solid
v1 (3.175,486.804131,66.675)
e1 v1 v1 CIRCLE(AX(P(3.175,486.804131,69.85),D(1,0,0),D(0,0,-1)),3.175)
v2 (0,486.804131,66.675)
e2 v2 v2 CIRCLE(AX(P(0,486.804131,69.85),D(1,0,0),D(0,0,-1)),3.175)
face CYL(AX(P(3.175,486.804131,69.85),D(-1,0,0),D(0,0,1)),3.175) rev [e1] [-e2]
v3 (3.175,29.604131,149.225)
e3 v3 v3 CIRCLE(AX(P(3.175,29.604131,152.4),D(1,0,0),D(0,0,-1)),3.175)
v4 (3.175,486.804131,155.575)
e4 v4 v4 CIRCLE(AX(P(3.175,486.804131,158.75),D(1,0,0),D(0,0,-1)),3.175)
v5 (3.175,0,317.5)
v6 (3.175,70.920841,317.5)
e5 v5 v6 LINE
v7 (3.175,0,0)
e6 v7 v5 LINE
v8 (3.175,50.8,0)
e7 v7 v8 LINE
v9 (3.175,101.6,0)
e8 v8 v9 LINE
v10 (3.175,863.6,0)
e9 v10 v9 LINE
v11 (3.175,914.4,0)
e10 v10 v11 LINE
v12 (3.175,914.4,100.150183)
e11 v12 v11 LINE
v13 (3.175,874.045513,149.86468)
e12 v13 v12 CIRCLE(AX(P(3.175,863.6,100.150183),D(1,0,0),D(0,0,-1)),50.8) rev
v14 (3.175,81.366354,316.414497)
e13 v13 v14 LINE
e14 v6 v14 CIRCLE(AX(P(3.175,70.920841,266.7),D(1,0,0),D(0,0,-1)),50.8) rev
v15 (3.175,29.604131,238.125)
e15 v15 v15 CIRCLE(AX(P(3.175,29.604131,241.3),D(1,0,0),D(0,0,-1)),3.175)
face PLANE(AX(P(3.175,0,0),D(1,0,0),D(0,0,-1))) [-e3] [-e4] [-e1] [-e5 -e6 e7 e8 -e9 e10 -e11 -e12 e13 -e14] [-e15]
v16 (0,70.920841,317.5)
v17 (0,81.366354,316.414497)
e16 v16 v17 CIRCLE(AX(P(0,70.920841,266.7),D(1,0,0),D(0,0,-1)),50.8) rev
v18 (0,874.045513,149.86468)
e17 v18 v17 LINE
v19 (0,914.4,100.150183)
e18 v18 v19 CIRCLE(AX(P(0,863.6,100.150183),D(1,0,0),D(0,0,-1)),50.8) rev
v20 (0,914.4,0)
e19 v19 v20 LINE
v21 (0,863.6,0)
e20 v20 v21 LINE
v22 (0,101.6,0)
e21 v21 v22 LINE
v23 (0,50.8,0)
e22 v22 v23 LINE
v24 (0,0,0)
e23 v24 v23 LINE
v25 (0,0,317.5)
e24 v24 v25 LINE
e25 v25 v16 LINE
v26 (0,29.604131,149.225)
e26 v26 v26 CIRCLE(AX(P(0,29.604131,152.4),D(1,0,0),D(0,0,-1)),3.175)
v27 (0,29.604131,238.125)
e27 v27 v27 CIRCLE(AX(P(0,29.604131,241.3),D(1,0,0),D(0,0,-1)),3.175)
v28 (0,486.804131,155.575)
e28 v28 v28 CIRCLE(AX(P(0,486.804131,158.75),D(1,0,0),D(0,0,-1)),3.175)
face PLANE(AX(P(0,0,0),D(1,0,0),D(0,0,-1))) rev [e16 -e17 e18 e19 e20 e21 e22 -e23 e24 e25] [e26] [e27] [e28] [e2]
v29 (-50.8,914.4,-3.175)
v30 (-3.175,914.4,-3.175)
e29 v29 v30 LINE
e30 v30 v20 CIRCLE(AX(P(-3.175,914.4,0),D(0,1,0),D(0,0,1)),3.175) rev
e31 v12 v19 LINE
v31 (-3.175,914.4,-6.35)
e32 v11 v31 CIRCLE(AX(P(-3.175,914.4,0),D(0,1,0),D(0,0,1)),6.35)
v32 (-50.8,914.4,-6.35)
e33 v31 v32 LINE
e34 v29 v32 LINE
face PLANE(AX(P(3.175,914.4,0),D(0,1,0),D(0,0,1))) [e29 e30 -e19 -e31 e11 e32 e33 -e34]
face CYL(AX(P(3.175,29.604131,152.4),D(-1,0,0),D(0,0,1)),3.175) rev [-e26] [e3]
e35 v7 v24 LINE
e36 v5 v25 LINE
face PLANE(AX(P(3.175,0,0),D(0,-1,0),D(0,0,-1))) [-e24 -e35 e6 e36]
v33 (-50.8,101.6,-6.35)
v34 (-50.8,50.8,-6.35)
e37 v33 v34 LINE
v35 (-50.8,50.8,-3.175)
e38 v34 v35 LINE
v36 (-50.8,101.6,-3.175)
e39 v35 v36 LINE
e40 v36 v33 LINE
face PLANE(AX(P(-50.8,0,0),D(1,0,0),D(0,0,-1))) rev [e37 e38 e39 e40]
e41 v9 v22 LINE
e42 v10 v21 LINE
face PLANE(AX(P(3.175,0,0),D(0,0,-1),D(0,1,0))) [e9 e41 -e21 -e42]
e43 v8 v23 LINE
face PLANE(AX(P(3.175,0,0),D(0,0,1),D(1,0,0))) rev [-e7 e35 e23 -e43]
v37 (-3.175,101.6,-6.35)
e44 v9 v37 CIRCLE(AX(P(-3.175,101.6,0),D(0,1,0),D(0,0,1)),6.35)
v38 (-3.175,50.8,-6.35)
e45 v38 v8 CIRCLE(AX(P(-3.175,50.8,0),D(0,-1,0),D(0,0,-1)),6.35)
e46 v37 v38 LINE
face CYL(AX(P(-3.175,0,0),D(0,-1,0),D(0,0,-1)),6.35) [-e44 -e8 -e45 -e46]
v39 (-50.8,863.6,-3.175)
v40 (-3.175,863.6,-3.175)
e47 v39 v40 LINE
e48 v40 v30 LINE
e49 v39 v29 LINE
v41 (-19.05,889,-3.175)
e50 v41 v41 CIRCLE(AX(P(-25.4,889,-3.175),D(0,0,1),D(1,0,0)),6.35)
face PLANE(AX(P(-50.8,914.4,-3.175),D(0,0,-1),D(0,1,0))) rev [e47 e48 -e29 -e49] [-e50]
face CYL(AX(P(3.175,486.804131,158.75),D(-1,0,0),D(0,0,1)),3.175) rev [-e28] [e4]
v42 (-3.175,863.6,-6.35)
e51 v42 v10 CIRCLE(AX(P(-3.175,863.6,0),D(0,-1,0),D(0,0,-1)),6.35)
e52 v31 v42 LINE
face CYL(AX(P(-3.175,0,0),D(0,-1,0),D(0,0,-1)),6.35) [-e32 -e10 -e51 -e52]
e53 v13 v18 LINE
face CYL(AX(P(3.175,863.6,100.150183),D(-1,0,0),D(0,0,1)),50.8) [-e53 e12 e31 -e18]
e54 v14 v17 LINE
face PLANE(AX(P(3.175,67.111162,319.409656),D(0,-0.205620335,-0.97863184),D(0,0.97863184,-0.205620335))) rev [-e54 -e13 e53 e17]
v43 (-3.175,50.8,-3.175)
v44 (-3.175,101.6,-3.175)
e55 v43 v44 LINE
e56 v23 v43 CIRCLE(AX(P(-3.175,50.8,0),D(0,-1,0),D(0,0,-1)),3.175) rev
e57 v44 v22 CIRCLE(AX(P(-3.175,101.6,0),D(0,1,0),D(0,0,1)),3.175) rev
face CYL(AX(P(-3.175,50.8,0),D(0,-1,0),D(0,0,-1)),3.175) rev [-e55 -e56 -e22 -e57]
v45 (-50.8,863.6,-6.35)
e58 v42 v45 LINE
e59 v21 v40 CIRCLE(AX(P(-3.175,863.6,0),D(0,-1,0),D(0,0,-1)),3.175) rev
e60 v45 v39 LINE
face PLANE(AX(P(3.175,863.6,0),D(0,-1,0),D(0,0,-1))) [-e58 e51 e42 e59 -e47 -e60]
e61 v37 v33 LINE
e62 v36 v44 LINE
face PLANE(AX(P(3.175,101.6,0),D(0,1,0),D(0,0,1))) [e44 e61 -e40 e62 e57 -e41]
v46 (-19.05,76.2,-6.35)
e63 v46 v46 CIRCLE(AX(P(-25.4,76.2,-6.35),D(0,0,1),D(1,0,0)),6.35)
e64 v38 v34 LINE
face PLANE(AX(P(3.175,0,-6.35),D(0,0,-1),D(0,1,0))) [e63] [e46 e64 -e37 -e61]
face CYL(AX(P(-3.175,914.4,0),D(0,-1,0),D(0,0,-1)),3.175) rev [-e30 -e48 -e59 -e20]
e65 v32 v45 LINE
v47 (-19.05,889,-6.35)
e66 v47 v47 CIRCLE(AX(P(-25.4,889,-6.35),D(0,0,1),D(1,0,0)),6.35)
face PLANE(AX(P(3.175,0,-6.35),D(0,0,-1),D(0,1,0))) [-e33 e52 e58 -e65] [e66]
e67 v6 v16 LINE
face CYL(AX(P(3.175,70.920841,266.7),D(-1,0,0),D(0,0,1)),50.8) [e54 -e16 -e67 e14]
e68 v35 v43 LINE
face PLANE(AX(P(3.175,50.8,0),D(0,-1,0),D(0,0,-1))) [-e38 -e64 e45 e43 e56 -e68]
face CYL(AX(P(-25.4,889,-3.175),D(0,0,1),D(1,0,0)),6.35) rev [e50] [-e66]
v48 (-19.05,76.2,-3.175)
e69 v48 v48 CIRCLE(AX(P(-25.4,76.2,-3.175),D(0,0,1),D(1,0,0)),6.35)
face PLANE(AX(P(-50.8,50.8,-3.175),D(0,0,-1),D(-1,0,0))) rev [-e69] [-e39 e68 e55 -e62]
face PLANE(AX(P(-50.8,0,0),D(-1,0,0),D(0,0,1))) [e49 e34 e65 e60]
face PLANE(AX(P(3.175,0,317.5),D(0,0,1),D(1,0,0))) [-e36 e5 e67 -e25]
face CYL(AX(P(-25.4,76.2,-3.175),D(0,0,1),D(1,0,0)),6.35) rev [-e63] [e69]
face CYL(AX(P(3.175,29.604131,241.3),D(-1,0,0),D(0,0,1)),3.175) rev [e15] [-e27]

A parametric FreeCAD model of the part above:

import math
import FreeCAD as App
import Part
import Sketcher
from FreeCAD import Vector
Q = App.Units.Quantity


def edges_at(feature, points):
    """Names of the edges that pass closest to the given points."""
    edges = feature.Shape.Edges
    near = lambda p: min(range(len(edges)), key=lambda i: edges[i].distToShape(Part.Vertex(*p))[0])
    return sorted({f"Edge{near(p) + 1}" for p in points})


def add_polygon(sketch, points):
    """Adds a closed chain of lines whose ends are joined by coincident constraints."""
    first, n = sketch.GeometryCount, len(points)
    for a, b in zip(points, points[1:] + points[:1]):
        sketch.addGeometry(Part.LineSegment(App.Vector(*a, 0), App.Vector(*b, 0)), False)
    for i in range(n):
        sketch.addConstraint(Sketcher.Constraint("Coincident", first + i, 2, first + (i + 1) % n, 1))

doc = App.newDocument("Part")
params = doc.addObject("Spreadsheet::Sheet", "Params")
for row, (alias, value) in enumerate([
    ("sketch1_radius", "2 in"),
    ("sketch1_diameter", "0.25 in"),
    ("sketch1_width", "30 in"),
    ("sketch1_height", "12.5 in"),
    ("sketch1_height2", "0.25 in"),
    ("pad1_length", "0.125 in"),
    ("sketch2_width", "2 in"),
    ("sketch2_height", "0.125 in"),
    ("pad2_length", "2 in"),
    ("fillet_radius", "0.25 in"),
    ("sketch3_diameter", "0.5 in"),
    ("hole_diameter", "0.5 in"),
    ("fillet2_radius", "0.125 in"),
], start=1):
    params.set(f"A{row}", alias)
    params.set(f"B{row}", "=" + value)
    params.setAlias(f"B{row}", alias)

body = doc.addObject("PartDesign::Body", "Body")

# Sketch on YZ plane
sketch1 = doc.addObject("Sketcher::SketchObject", "Sketch")
body.addObject(sketch1)
sketch1.AttachmentSupport = (doc.YZ_Plane, [""])
sketch1.MapMode = "FlatFace"
sketch1.addGeometry([
    Part.LineSegment(Vector(0, 317.5, 0), Vector(0, 0, 0)),  # 0
    Part.LineSegment(Vector(0, 0, 0), Vector(50.8, 0, 0)),  # 1
    Part.LineSegment(Vector(50.8, 0, 0), Vector(50.8, -6.3, 0)),  # 2
    Part.LineSegment(Vector(50.8, -6.3, 0), Vector(101.6, -6.3, 0)),  # 3
    Part.LineSegment(Vector(101.6, -6.3, 0), Vector(101.6, 0, 0)),  # 4
    Part.LineSegment(Vector(101.6, 0, 0), Vector(863.6, 0, 0)),  # 5
    Part.LineSegment(Vector(863.6, 0, 0), Vector(863.6, -6.3, 0)),  # 6
    Part.LineSegment(Vector(863.6, -6.3, 0), Vector(914.4, -6.3, 0)),  # 7
    Part.LineSegment(Vector(914.4, -6.3, 0), Vector(914.4, 100.2, 0)),  # 8
    Part.ArcOfCircle(Part.Circle(Vector(863.6, 100.2, 0), Vector(0, 0, 1), 50.8), math.radians(0), math.radians(78)),  # 9
    Part.LineSegment(Vector(874, 149.9, 0), Vector(81.4, 316.4, 0)),  # 10
    Part.ArcOfCircle(Part.Circle(Vector(70.9, 266.7, 0), Vector(0, 0, 1), 50.8), math.radians(78.13), math.radians(90)),  # 11
    Part.LineSegment(Vector(70.9, 317.5, 0), Vector(0, 317.5, 0)),  # 12
    Part.Circle(Vector(29.6, 152.4, 0), Vector(0, 0, 1), 3.2),  # 13
    Part.Circle(Vector(29.6, 241.3, 0), Vector(0, 0, 1), 3.2),  # 14
    Part.Circle(Vector(486.8, 69.8, 0), Vector(0, 0, 1), 3.2),  # 15
    Part.Circle(Vector(486.8, 158.8, 0), Vector(0, 0, 1), 3.2),  # 16
], False)
sketch1.addConstraint([
    Sketcher.Constraint("Coincident", 0, 2, 1, 1),
    Sketcher.Constraint("Coincident", 1, 2, 2, 1),
    Sketcher.Constraint("Coincident", 2, 2, 3, 1),
    Sketcher.Constraint("Coincident", 3, 2, 4, 1),
    Sketcher.Constraint("Coincident", 4, 2, 5, 1),
    Sketcher.Constraint("Coincident", 5, 2, 6, 1),
    Sketcher.Constraint("Coincident", 6, 2, 7, 1),
    Sketcher.Constraint("Coincident", 7, 2, 8, 1),
    Sketcher.Constraint("Tangent", 8, 2, 9, 1),
    Sketcher.Constraint("Tangent", 9, 2, 10, 1),
    Sketcher.Constraint("Tangent", 10, 2, 11, 1),
    Sketcher.Constraint("Tangent", 11, 2, 12, 1),
    Sketcher.Constraint("Coincident", 12, 2, 0, 1),
    Sketcher.Constraint("Vertical", 0),
    Sketcher.Constraint("Horizontal", 1),
    Sketcher.Constraint("Vertical", 2),
    Sketcher.Constraint("Horizontal", 3),
    Sketcher.Constraint("Vertical", 4),
    Sketcher.Constraint("Horizontal", 5),
    Sketcher.Constraint("Vertical", 6),
    Sketcher.Constraint("Horizontal", 7),
    Sketcher.Constraint("Vertical", 8),
    Sketcher.Constraint("Horizontal", 12),
    Sketcher.Constraint("Coincident", 0, 2, -1, 1),
    Sketcher.Constraint("Equal", 9, 11),
    Sketcher.Constraint("Equal", 13, 14),
    Sketcher.Constraint("Equal", 14, 15),
    Sketcher.Constraint("Equal", 15, 16),
    Sketcher.Constraint("PointOnObject", 4, 2, -1),
    Sketcher.Constraint("Horizontal", 3, 2, 6, 2),
    Sketcher.Constraint("Vertical", 13, 3, 14, 3),
    Sketcher.Constraint("Vertical", 15, 3, 16, 3),
    Sketcher.Constraint("Vertical", 9, 3, 5, 2),
    Sketcher.Constraint("Equal", 1, 3),
    Sketcher.Constraint("Equal", 3, 7),
    Sketcher.Constraint("Radius", 9, Q("2 in")),
    Sketcher.Constraint("Diameter", 13, Q("0.25 in")),
    Sketcher.Constraint("DistanceX", 5, 1, 5, 2, Q("30 in")),
    Sketcher.Constraint("DistanceY", 0, 2, 0, 1, Q("12.5 in")),
    Sketcher.Constraint("DistanceY", -1, 1, 13, 3, Q("6 in")),
    Sketcher.Constraint("DistanceY", 14, 3, 11, 3, Q("1 in")),
    Sketcher.Constraint("DistanceX", 13, 3, 15, 3, Q("18 in")),
    Sketcher.Constraint("DistanceY", 6, 2, 15, 3, Q("3 in")),
    Sketcher.Constraint("DistanceY", 2, 2, 2, 1, Q("0.25 in")),
    Sketcher.Constraint("DistanceY", 15, 3, 16, 3, Q("3.5 in")),
    Sketcher.Constraint("DistanceX", 12, 2, 12, 1, Q("70.920841 mm")),
    Sketcher.Constraint("DistanceY", 8, 1, 8, 2, Q("106.500183 mm")),
    Sketcher.Constraint("DistanceX", -1, 1, 13, 3, Q("29.604131 mm")),
])
sketch1.setExpression("Constraints[35]", "Params.sketch1_radius")
sketch1.setExpression("Constraints[36]", "Params.sketch1_diameter")
sketch1.setExpression("Constraints[37]", "Params.sketch1_width")
sketch1.setExpression("Constraints[38]", "Params.sketch1_height")
sketch1.setExpression("Constraints[43]", "Params.sketch1_height2")
pad1 = doc.addObject("PartDesign::Pad", "Pad")
body.addObject(pad1)
pad1.Profile = sketch1
pad1.setExpression("Length", "Params.pad1_length")

# Sketch on YZ plane
sketch2 = doc.addObject("Sketcher::SketchObject", "Sketch001")
body.addObject(sketch2)
sketch2.AttachmentSupport = (doc.YZ_Plane, [""])
sketch2.MapMode = "FlatFace"
add_polygon(sketch2, [(914.4, -6.3), (863.6, -6.3), (863.6, -3.2), (914.4, -3.2)])  # lines 0-3
add_polygon(sketch2, [(101.6, -6.3), (50.8, -6.3), (50.8, -3.2), (101.6, -3.2)])  # lines 4-7
sketch2.addConstraint([
    Sketcher.Constraint("Horizontal", 0),
    Sketcher.Constraint("Vertical", 1),
    Sketcher.Constraint("Horizontal", 2),
    Sketcher.Constraint("Vertical", 3),
    Sketcher.Constraint("Horizontal", 4),
    Sketcher.Constraint("Vertical", 5),
    Sketcher.Constraint("Horizontal", 6),
    Sketcher.Constraint("Vertical", 7),
    Sketcher.Constraint("Horizontal", 3, 2, 4, 2),
    Sketcher.Constraint("Horizontal", 2, 2, 5, 2),
    Sketcher.Constraint("Equal", 2, 4),
    Sketcher.Constraint("DistanceX", 0, 2, 0, 1, Q("2 in")),
    Sketcher.Constraint("DistanceX", -1, 1, 0, 2, Q("34 in")),
    Sketcher.Constraint("DistanceX", -1, 1, 4, 2, Q("2 in")),
    Sketcher.Constraint("DistanceY", 1, 1, 1, 2, Q("0.125 in")),
    Sketcher.Constraint("DistanceY", 0, 2, -1, 1, Q("0.25 in")),
])
sketch2.setExpression("Constraints[19]", "Params.sketch2_width")
sketch2.setExpression("Constraints[22]", "Params.sketch2_height")
pad2 = doc.addObject("PartDesign::Pad", "Pad001")
body.addObject(pad2)
pad2.Profile = sketch2
pad2.setExpression("Length", "Params.pad2_length")
pad2.Reversed = True
doc.recompute()

fillet = doc.addObject("PartDesign::Fillet", "Fillet")
body.addObject(fillet)
fillet.Base = (pad2, edges_at(pad2, [(3.175, 76.2, -6.35), (3.175, 889, -6.35)]))
fillet.setExpression("Radius", "Params.fillet_radius")

# Sketch on XY plane
sketch3 = doc.addObject("Sketcher::SketchObject", "Sketch002")
body.addObject(sketch3)
sketch3.AttachmentSupport = (doc.XY_Plane, [""])
sketch3.MapMode = "FlatFace"
sketch3.AttachmentOffset = App.Placement(Vector(0, 0, -0.125 * 25.4), App.Rotation())
sketch3.addGeometry([
    Part.Circle(Vector(-25, 76, 0), Vector(0, 0, 1), 6),
    Part.Circle(Vector(-25, 889, 0), Vector(0, 0, 1), 6),
], False)
sketch3.addConstraint([
    Sketcher.Constraint("Equal", 0, 1),
    Sketcher.Constraint("Vertical", 0, 3, 1, 3),
    Sketcher.Constraint("Diameter", 0, Q("0.5 in")),
    Sketcher.Constraint("DistanceX", 0, 3, -1, 1, Q("1 in")),
    Sketcher.Constraint("DistanceY", -1, 1, 0, 3, Q("3 in")),
    Sketcher.Constraint("DistanceY", -1, 1, 1, 3, Q("35 in")),
])
sketch3.setExpression("Constraints[2]", "Params.sketch3_diameter")
doc.recompute()
hole = doc.addObject("PartDesign::Hole", "Hole")
body.addObject(hole)
hole.Profile = sketch3
hole.ThreadType = "None"
hole.setExpression("Diameter", "Params.hole_diameter")
hole.DepthType = "ThroughAll"
doc.recompute()

fillet2 = doc.addObject("PartDesign::Fillet", "Fillet001")
body.addObject(fillet2)
fillet2.Base = (hole, edges_at(hole, [(0, 889, -3.175), (0, 76.2, -3.175)]))
fillet2.setExpression("Radius", "Params.fillet2_radius")

doc.recompute()
